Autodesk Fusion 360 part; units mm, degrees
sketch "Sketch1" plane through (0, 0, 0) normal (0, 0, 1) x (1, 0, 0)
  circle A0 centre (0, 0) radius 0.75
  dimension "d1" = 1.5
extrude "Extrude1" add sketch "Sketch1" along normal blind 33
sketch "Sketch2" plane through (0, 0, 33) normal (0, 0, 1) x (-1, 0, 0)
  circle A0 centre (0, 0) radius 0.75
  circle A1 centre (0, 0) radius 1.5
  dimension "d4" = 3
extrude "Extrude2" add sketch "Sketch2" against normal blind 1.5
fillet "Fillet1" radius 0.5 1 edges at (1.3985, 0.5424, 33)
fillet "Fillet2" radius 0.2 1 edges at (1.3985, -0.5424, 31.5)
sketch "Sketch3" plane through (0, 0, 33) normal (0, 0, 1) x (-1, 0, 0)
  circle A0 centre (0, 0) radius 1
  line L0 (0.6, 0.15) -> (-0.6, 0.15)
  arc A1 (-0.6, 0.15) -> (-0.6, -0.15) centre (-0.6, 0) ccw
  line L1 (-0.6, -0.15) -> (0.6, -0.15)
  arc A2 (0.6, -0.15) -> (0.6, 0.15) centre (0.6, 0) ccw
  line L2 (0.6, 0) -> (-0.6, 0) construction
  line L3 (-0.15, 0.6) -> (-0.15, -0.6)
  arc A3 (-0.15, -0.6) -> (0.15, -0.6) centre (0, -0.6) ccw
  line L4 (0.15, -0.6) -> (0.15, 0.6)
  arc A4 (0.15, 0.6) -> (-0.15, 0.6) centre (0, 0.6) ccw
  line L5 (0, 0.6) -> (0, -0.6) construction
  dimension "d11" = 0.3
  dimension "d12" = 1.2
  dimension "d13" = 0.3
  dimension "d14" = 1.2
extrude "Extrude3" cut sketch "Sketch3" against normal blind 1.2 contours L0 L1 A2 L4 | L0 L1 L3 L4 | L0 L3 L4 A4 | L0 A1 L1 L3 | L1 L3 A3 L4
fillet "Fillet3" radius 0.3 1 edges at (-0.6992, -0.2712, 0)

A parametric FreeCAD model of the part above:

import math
import FreeCAD as App
import Part
import Sketcher

V = App.Vector
Q = App.Units.Quantity


def edges_at(feature, points):
    """Names of the edges that pass closest to the given points."""
    edges = feature.Shape.Edges
    near = lambda p: min(range(len(edges)), key=lambda i: edges[i].distToShape(Part.Vertex(*p))[0])
    return sorted({f"Edge{near(p) + 1}" for p in points})

doc = App.newDocument("Part")
body = doc.addObject("PartDesign::Body", "Body")

# Sketch on XY plane
sketch1 = body.newObject("Sketcher::SketchObject", "Sketch")
sketch1.AttachmentSupport = (doc.getObject("XY_Plane"), [""])
sketch1.MapMode = "FlatFace"
sketch1.addGeometry(Part.Circle(V(0, 0, 0), V(0, 0, 1), 0.8), False)
sketch1.addConstraint(Sketcher.Constraint("Coincident", 0, 3, -1, 1))
sketch1.addConstraint(Sketcher.Constraint("Diameter", 0, Q("1.5 mm")))
pad1 = body.newObject("PartDesign::Pad", "Pad")
pad1.Profile = sketch1
pad1.Length = 33

# Sketch on XY plane
sketch2 = body.newObject("Sketcher::SketchObject", "Sketch001")
sketch2.AttachmentSupport = (doc.getObject("XY_Plane"), [""])
sketch2.MapMode = "FlatFace"
sketch2.AttachmentOffset = App.Placement(V(0, 0, 33), App.Rotation())
sketch2.addGeometry(Part.Circle(V(0, 0, 0), V(0, 0, 1), 1.5), False)
sketch2.addGeometry(Part.Circle(V(0, 0, 0), V(0, 0, 1), 0.8), False)
sketch2.addConstraint(Sketcher.Constraint("Coincident", 0, 3, -1, 1))
sketch2.addConstraint(Sketcher.Constraint("Coincident", 1, 3, -1, 1))
sketch2.addConstraint(Sketcher.Constraint("Diameter", 0, Q("3 mm")))
sketch2.addConstraint(Sketcher.Constraint("Diameter", 1, Q("1.5 mm")))
pad2 = body.newObject("PartDesign::Pad", "Pad001")
pad2.Profile = sketch2
pad2.Length = 1.5
pad2.Reversed = True
doc.recompute()

fillet = body.newObject("PartDesign::Fillet", "Fillet")
fillet.Base = (pad2, edges_at(pad2, [(1.399, 0.542, 33)]))
fillet.Radius = 0.5
doc.recompute()

fillet2 = body.newObject("PartDesign::Fillet", "Fillet001")
fillet2.Base = (fillet, edges_at(fillet, [(1.399, -0.542, 31.5)]))
fillet2.Radius = 0.2

# Sketch on XY plane
sketch3 = body.newObject("Sketcher::SketchObject", "Sketch002")
sketch3.AttachmentSupport = (doc.getObject("XY_Plane"), [""])
sketch3.MapMode = "FlatFace"
sketch3.AttachmentOffset = App.Placement(V(0, 0, 33), App.Rotation())
sketch3.addGeometry(Part.ArcOfCircle(Part.Circle(V(-0.6, 0, 0), V(0, 0, 1), 0.15), math.radians(90), math.radians(270)), False)
sketch3.addGeometry(Part.LineSegment(V(-0.6, -0.15, 0), V(-0.15, -0.15, 0)), False)
sketch3.addGeometry(Part.LineSegment(V(-0.15, -0.15, 0), V(-0.15, -0.6, 0)), False)
sketch3.addGeometry(Part.ArcOfCircle(Part.Circle(V(0, -0.6, 0), V(0, 0, 1), 0.15), math.radians(180), math.radians(360)), False)
sketch3.addGeometry(Part.LineSegment(V(0.15, -0.6, 0), V(0.15, -0.15, 0)), False)
sketch3.addGeometry(Part.LineSegment(V(0.15, -0.15, 0), V(0.6, -0.15, 0)), False)
sketch3.addGeometry(Part.ArcOfCircle(Part.Circle(V(0.6, 0, 0), V(0, 0, 1), 0.15), math.radians(-90), math.radians(90)), False)
sketch3.addGeometry(Part.LineSegment(V(0.6, 0.15, 0), V(0.15, 0.15, 0)), False)
sketch3.addGeometry(Part.LineSegment(V(0.15, 0.15, 0), V(0.15, 0.6, 0)), False)
sketch3.addGeometry(Part.ArcOfCircle(Part.Circle(V(0, 0.6, 0), V(0, 0, 1), 0.15), math.radians(0), math.radians(180)), False)
sketch3.addGeometry(Part.LineSegment(V(-0.15, 0.6, 0), V(-0.15, 0.15, 0)), False)
sketch3.addGeometry(Part.LineSegment(V(-0.15, 0.15, 0), V(-0.6, 0.15, 0)), False)
sketch3.addConstraint(Sketcher.Constraint("Tangent", 0, 2, 1, 1))
sketch3.addConstraint(Sketcher.Constraint("Coincident", 1, 2, 2, 1))
sketch3.addConstraint(Sketcher.Constraint("Tangent", 2, 2, 3, 1))
sketch3.addConstraint(Sketcher.Constraint("Tangent", 3, 2, 4, 1))
sketch3.addConstraint(Sketcher.Constraint("Coincident", 4, 2, 5, 1))
sketch3.addConstraint(Sketcher.Constraint("Tangent", 5, 2, 6, 1))
sketch3.addConstraint(Sketcher.Constraint("Tangent", 6, 2, 7, 1))
sketch3.addConstraint(Sketcher.Constraint("Coincident", 7, 2, 8, 1))
sketch3.addConstraint(Sketcher.Constraint("Tangent", 8, 2, 9, 1))
sketch3.addConstraint(Sketcher.Constraint("Tangent", 9, 2, 10, 1))
sketch3.addConstraint(Sketcher.Constraint("Coincident", 10, 2, 11, 1))
sketch3.addConstraint(Sketcher.Constraint("Tangent", 11, 2, 0, 1))
sketch3.addConstraint(Sketcher.Constraint("Horizontal", 1))
sketch3.addConstraint(Sketcher.Constraint("Vertical", 2))
sketch3.addConstraint(Sketcher.Constraint("Vertical", 4))
sketch3.addConstraint(Sketcher.Constraint("Horizontal", 5))
sketch3.addConstraint(Sketcher.Constraint("Horizontal", 7))
sketch3.addConstraint(Sketcher.Constraint("Vertical", 8))
sketch3.addConstraint(Sketcher.Constraint("Vertical", 10))
sketch3.addConstraint(Sketcher.Constraint("Horizontal", 11))
sketch3.addConstraint(Sketcher.Constraint("Equal", 0, 3))
sketch3.addConstraint(Sketcher.Constraint("Equal", 3, 6))
sketch3.addConstraint(Sketcher.Constraint("Equal", 6, 9))
sketch3.addConstraint(Sketcher.Constraint("Symmetric", 0, 3, 6, 3, -1, 1))
sketch3.addConstraint(Sketcher.Constraint("Symmetric", 3, 3, 9, 3, -1, 1))
sketch3.addConstraint(Sketcher.Constraint("Symmetric", 1, 2, 4, 2, -2))
sketch3.addConstraint(Sketcher.Constraint("Equal", 11, 2))
sketch3.addConstraint(Sketcher.Constraint("Radius", 0, Q("0.15 mm")))
sketch3.addConstraint(Sketcher.Constraint("DistanceX", 0, 3, 6, 3, Q("1.2 mm")))
pocket1 = body.newObject("PartDesign::Pocket", "Pocket")
pocket1.Profile = sketch3
pocket1.Length = 1.2
doc.recompute()

fillet3 = body.newObject("PartDesign::Fillet", "Fillet002")
fillet3.Base = (pocket1, edges_at(pocket1, [(-0.699, -0.271, 0)]))
fillet3.Radius = 0.3

doc.recompute()
